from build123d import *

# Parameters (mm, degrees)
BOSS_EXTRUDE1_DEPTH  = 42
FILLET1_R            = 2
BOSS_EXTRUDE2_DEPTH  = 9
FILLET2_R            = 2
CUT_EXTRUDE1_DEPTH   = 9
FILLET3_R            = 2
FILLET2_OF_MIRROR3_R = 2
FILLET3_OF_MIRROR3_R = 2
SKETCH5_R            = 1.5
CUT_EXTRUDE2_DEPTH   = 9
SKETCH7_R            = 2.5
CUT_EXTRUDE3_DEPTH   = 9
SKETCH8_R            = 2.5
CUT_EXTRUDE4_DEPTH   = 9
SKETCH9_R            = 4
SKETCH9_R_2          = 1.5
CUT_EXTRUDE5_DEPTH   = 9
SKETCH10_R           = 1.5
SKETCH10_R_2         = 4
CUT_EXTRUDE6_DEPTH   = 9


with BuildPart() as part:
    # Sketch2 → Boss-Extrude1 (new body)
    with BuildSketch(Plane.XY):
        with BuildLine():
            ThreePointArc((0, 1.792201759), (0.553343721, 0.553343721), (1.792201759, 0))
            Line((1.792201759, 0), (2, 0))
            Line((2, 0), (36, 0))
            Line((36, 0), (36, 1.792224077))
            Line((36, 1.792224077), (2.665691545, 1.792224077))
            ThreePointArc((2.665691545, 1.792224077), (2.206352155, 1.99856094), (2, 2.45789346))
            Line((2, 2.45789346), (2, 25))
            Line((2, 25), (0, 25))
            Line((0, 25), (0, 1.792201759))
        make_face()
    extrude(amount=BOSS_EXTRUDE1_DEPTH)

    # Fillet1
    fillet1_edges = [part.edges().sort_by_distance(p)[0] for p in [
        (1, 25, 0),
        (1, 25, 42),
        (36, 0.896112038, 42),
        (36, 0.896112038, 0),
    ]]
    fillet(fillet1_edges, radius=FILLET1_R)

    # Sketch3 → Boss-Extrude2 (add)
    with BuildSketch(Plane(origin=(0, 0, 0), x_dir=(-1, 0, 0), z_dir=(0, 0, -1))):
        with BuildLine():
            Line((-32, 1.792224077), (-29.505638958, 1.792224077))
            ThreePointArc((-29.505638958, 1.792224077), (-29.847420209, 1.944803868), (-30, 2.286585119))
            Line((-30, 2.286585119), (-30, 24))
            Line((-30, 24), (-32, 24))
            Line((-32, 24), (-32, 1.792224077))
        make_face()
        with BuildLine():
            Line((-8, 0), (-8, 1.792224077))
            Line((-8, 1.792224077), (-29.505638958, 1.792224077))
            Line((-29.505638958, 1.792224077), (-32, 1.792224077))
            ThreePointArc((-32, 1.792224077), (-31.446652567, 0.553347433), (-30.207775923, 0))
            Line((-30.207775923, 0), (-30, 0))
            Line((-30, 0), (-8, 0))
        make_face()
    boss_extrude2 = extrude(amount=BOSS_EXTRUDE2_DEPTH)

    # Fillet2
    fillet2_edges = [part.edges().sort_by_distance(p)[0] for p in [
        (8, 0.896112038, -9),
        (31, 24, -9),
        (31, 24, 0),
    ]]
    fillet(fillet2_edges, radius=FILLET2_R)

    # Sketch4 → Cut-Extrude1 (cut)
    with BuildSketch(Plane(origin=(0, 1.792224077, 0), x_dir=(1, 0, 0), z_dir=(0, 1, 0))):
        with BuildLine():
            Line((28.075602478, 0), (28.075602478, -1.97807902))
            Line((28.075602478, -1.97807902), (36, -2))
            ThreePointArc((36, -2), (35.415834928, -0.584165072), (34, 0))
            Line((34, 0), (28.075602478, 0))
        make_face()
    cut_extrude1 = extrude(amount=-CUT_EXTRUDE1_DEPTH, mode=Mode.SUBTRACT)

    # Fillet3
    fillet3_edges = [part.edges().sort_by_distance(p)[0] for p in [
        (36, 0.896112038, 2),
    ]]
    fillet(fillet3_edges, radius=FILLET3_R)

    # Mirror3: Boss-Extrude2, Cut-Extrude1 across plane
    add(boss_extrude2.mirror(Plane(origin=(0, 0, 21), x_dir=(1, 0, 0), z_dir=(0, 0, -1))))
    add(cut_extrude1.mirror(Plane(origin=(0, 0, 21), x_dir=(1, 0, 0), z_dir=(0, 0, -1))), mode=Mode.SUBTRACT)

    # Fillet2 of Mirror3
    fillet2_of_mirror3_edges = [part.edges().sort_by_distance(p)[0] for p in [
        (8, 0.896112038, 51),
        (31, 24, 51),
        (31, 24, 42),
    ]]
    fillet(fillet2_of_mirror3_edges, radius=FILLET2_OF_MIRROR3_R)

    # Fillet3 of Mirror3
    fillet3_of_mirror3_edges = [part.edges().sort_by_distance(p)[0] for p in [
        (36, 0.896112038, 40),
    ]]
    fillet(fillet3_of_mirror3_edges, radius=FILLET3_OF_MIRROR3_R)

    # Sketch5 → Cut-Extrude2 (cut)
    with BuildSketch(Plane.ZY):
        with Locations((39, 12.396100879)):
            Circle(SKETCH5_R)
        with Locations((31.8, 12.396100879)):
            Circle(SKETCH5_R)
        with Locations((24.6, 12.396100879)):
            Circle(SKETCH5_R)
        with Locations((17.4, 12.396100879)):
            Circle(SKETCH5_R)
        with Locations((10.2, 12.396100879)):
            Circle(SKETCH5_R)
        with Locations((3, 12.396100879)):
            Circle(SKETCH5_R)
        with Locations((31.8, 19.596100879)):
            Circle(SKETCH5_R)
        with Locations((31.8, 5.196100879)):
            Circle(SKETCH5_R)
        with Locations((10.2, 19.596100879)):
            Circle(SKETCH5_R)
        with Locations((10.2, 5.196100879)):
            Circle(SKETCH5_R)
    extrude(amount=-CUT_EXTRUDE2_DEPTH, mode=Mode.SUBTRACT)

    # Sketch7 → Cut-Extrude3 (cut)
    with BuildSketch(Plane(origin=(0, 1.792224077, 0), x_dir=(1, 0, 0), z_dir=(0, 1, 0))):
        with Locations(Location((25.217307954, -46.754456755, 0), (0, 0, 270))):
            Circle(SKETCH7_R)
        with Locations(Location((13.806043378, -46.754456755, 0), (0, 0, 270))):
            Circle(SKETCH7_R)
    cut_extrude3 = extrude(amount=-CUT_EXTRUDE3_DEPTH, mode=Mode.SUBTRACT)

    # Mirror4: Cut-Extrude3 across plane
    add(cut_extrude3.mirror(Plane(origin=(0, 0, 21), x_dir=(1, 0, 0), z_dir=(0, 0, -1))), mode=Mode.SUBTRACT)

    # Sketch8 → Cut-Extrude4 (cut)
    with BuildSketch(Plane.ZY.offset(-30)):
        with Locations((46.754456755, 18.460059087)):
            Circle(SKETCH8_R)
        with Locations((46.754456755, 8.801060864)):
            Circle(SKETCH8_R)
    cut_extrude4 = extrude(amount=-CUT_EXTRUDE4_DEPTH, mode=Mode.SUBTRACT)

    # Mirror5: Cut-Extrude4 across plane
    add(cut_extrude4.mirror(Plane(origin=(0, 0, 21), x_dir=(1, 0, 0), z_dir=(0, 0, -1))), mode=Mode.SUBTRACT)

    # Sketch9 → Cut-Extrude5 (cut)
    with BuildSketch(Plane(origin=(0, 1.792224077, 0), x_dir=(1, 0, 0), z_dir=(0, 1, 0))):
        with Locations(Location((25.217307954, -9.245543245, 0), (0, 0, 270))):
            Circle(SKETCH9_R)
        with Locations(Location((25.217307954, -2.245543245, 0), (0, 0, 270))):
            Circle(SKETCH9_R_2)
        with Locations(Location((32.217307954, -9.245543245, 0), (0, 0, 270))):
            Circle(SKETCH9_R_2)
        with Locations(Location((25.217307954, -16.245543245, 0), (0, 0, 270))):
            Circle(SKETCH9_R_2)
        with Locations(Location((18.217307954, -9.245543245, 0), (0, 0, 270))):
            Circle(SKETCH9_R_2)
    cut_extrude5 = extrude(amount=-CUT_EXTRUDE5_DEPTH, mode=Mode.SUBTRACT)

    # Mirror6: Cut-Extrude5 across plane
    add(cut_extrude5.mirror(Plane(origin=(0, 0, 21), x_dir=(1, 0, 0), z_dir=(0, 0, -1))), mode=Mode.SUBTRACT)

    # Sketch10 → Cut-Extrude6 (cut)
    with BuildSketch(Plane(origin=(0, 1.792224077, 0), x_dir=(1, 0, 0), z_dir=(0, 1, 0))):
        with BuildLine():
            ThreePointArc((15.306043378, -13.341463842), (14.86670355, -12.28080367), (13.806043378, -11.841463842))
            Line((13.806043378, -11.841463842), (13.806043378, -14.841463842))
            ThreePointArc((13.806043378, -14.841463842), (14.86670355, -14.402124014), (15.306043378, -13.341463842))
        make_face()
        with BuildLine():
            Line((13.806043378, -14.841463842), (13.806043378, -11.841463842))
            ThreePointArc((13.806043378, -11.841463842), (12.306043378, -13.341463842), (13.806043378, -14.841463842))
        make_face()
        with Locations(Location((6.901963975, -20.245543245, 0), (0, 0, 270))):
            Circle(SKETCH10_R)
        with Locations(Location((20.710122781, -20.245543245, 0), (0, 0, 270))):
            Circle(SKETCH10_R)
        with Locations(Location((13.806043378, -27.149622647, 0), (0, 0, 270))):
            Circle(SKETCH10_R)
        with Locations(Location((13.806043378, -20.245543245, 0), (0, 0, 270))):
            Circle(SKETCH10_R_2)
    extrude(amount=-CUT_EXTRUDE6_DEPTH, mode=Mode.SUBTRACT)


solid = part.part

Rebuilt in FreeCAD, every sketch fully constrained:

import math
import FreeCAD as App
import Part
import Sketcher
from FreeCAD import Vector
Q = App.Units.Quantity


def edges_at(feature, points):
    """Names of the edges that pass closest to the given points."""
    edges = feature.Shape.Edges
    near = lambda p: min(range(len(edges)), key=lambda i: edges[i].distToShape(Part.Vertex(*p))[0])
    return sorted({f"Edge{near(p) + 1}" for p in points})

doc = App.newDocument("Part")
body = doc.addObject("PartDesign::Body", "Body")

sketch1 = doc.addObject("Sketcher::SketchObject", "Sketch")
body.addObject(sketch1)
sketch1.AttachmentSupport = (doc.XY_Plane, [""])
sketch1.MapMode = "FlatFace"
sketch1.addGeometry([
    Part.ArcOfCircle(Part.Circle(Vector(1.9, 1.9, 0), Vector(0, 0, 1), 1.9), math.radians(-177), math.radians(-93)),
    Part.LineSegment(Vector(1.8, 0, 0), Vector(36, 0, 0)),
    Part.LineSegment(Vector(36, 0, 0), Vector(36, 1.8, 0)),
    Part.LineSegment(Vector(36, 1.8, 0), Vector(2.7, 1.8, 0)),
    Part.ArcOfCircle(Part.Circle(Vector(2.7, 2.5, 0), Vector(0, 0, 1), 0.7), math.radians(-177), math.radians(-93)),
    Part.LineSegment(Vector(2, 2.5, 0), Vector(2, 25, 0)),
    Part.LineSegment(Vector(2, 25, 0), Vector(0, 25, 0)),
    Part.LineSegment(Vector(0, 25, 0), Vector(0, 1.8, 0)),
], False)
sketch1.addConstraint([
    Sketcher.Constraint("Coincident", 0, 2, 1, 1),
    Sketcher.Constraint("Coincident", 1, 2, 2, 1),
    Sketcher.Constraint("Coincident", 2, 2, 3, 1),
    Sketcher.Constraint("Coincident", 3, 2, 4, 2),
    Sketcher.Constraint("Coincident", 4, 1, 5, 1),
    Sketcher.Constraint("Coincident", 5, 2, 6, 1),
    Sketcher.Constraint("Coincident", 6, 2, 7, 1),
    Sketcher.Constraint("Coincident", 7, 2, 0, 1),
    Sketcher.Constraint("Horizontal", 1),
    Sketcher.Constraint("Vertical", 2),
    Sketcher.Constraint("Horizontal", 3),
    Sketcher.Constraint("Vertical", 5),
    Sketcher.Constraint("Horizontal", 6),
    Sketcher.Constraint("Vertical", 7),
    Sketcher.Constraint("PointOnObject", 0, 2, -1),
    Sketcher.Constraint("PointOnObject", 6, 2, -2),
    Sketcher.Constraint("DistanceX", 6, 2, 6, 1, Q("2 mm")),
    Sketcher.Constraint("DistanceX", -1, 1, 1, 2, Q("36 mm")),
    Sketcher.Constraint("DistanceY", -1, 1, 5, 2, Q("25 mm")),
    Sketcher.Constraint("DistanceX", 1, 1, 1, 2, Q("34.207798 mm")),
    Sketcher.Constraint("DistanceY", 7, 2, 7, 1, Q("23.207798 mm")),
    Sketcher.Constraint("Radius", 0, Q("1.898945 mm")),
    Sketcher.Constraint("Radius", 4, Q("0.708717 mm")),
    Sketcher.Constraint("DistanceX", 3, 2, 3, 1, Q("33.334308 mm")),
    Sketcher.Constraint("DistanceY", 2, 1, 2, 2, Q("1.792224 mm")),
    Sketcher.Constraint("DistanceY", 5, 1, 5, 2, Q("22.542107 mm")),
])
pad1 = doc.addObject("PartDesign::Pad", "Pad")
body.addObject(pad1)
pad1.Profile = sketch1
pad1.Length = 42
doc.recompute()

fillet = doc.addObject("PartDesign::Fillet", "Fillet")
body.addObject(fillet)
fillet.Base = (pad1, edges_at(pad1, [
    (1, 25, 0),
    (1, 25, 42),
    (36, 0.896, 42),
    (36, 0.896, 0),
]))
fillet.Radius = 2

sketch2 = doc.addObject("Sketcher::SketchObject", "Sketch001")
body.addObject(sketch2)
sketch2.AttachmentSupport = (doc.XY_Plane, [""])
sketch2.MapMode = "FlatFace"
sketch2.addGeometry([
    Part.ArcOfCircle(Part.Circle(Vector(29.5, 2.3, 0), Vector(0, 0, 1), 0.5), math.radians(-87), math.radians(-3)),
    Part.LineSegment(Vector(30, 2.3, 0), Vector(30, 24, 0)),
    Part.LineSegment(Vector(30, 24, 0), Vector(32, 24, 0)),
    Part.LineSegment(Vector(32, 24, 0), Vector(32, 1.8, 0)),
    Part.ArcOfCircle(Part.Circle(Vector(30.1, 1.9, 0), Vector(0, 0, 1), 1.9), math.radians(-87), math.radians(-3)),
    Part.LineSegment(Vector(30.2, 0, 0), Vector(8, 0, 0)),
    Part.LineSegment(Vector(8, 0, 0), Vector(8, 1.8, 0)),
    Part.LineSegment(Vector(8, 1.8, 0), Vector(29.5, 1.8, 0)),
], False)
sketch2.addConstraint([
    Sketcher.Constraint("Coincident", 0, 2, 1, 1),
    Sketcher.Constraint("Coincident", 1, 2, 2, 1),
    Sketcher.Constraint("Coincident", 2, 2, 3, 1),
    Sketcher.Constraint("Coincident", 3, 2, 4, 2),
    Sketcher.Constraint("Coincident", 4, 1, 5, 1),
    Sketcher.Constraint("Coincident", 5, 2, 6, 1),
    Sketcher.Constraint("Coincident", 6, 2, 7, 1),
    Sketcher.Constraint("Coincident", 7, 2, 0, 1),
    Sketcher.Constraint("Vertical", 1),
    Sketcher.Constraint("Horizontal", 2),
    Sketcher.Constraint("Vertical", 3),
    Sketcher.Constraint("Horizontal", 5),
    Sketcher.Constraint("Vertical", 6),
    Sketcher.Constraint("Horizontal", 7),
    Sketcher.Constraint("PointOnObject", 4, 1, -1),
    Sketcher.Constraint("Horizontal", 3, 2, 6, 2),
    Sketcher.Constraint("Equal", 5, 3),
    Sketcher.Constraint("DistanceX", 2, 1, 2, 2, Q("2 mm")),
    Sketcher.Constraint("DistanceX", -1, 1, 0, 2, Q("30 mm")),
    Sketcher.Constraint("DistanceY", -1, 1, 1, 2, Q("24 mm")),
    Sketcher.Constraint("DistanceX", -1, 1, 5, 2, Q("8 mm")),
    Sketcher.Constraint("Radius", 0, Q("0.52358 mm")),
    Sketcher.Constraint("Radius", 4, Q("1.898956 mm")),
    Sketcher.Constraint("DistanceX", 7, 1, 7, 2, Q("21.505639 mm")),
    Sketcher.Constraint("DistanceX", 5, 2, 5, 1, Q("22.207776 mm")),
    Sketcher.Constraint("DistanceY", 1, 1, 1, 2, Q("21.713415 mm")),
])
pad2 = doc.addObject("PartDesign::Pad", "Pad001")
body.addObject(pad2)
pad2.Profile = sketch2
pad2.Length = 9
pad2.Reversed = True
doc.recompute()

fillet2 = doc.addObject("PartDesign::Fillet", "Fillet001")
body.addObject(fillet2)
fillet2.Base = (pad2, edges_at(pad2, [(8, 0.896, -9), (31, 24, -9), (31, 24, 0)]))
fillet2.Radius = 2

sketch3 = doc.addObject("Sketcher::SketchObject", "Sketch002")
body.addObject(sketch3)
sketch3.AttachmentSupport = (doc.XZ_Plane, [""])
sketch3.MapMode = "FlatFace"
sketch3.AttachmentOffset = App.Placement(Vector(0, 0, -1.792224), App.Rotation())
sketch3.addGeometry([
    Part.LineSegment(Vector(28.1, 0, 0), Vector(28.1, 2, 0)),
    Part.LineSegment(Vector(28.1, 2, 0), Vector(36, 2, 0)),
    Part.ArcOfCircle(Part.Circle(Vector(34, 2, 0), Vector(0, 0, 1), 2), math.radians(-90), math.radians(0)),
    Part.LineSegment(Vector(34, 0, 0), Vector(28.1, 0, 0)),
], False)
sketch3.addConstraint([
    Sketcher.Constraint("Coincident", 0, 2, 1, 1),
    Sketcher.Constraint("Coincident", 1, 2, 2, 2),
    Sketcher.Constraint("Coincident", 2, 1, 3, 1),
    Sketcher.Constraint("Coincident", 3, 2, 0, 1),
    Sketcher.Constraint("Vertical", 0),
    Sketcher.Constraint("Horizontal", 3),
    Sketcher.Constraint("PointOnObject", 2, 1, -1),
    Sketcher.Constraint("DistanceX", -1, 1, 1, 2, Q("36 mm")),
    Sketcher.Constraint("DistanceY", -1, 1, 1, 2, Q("2 mm")),
    Sketcher.Constraint("DistanceX", -1, 1, 2, 1, Q("34 mm")),
    Sketcher.Constraint("Radius", 2, Q("1.99449 mm")),
    Sketcher.Constraint("DistanceY", 0, 1, 0, 2, Q("1.978079 mm")),
    Sketcher.Constraint("DistanceX", 3, 2, 3, 1, Q("5.924398 mm")),
])
pocket1 = doc.addObject("PartDesign::Pocket", "Pocket")
body.addObject(pocket1)
pocket1.Profile = sketch3
pocket1.Length = 9
pocket1.Reversed = True
doc.recompute()

fillet3 = doc.addObject("PartDesign::Fillet", "Fillet002")
body.addObject(fillet3)
fillet3.Base = (pocket1, edges_at(pocket1, [(36, 0.896, 2)]))
fillet3.Radius = 2
doc.recompute()

datumplane = doc.addObject("PartDesign::Plane", "DatumPlane")
body.addObject(datumplane)
datumplane.AttachmentSupport = (doc.XY_Plane, [""])
datumplane.MapMode = "FlatFace"
datumplane.AttachmentOffset = App.Placement(Vector(0, 0, 21), App.Rotation())
mirrored = doc.addObject("PartDesign::Mirrored", "Mirrored")
body.addObject(mirrored)
mirrored.Originals = [pad2, pocket1]
mirrored.MirrorPlane = (datumplane, [""])
body.Tip = mirrored
doc.recompute()

fillet4 = doc.addObject("PartDesign::Fillet", "Fillet003")
body.addObject(fillet4)
fillet4.Base = (mirrored, edges_at(mirrored, [(8, 0.896, 51), (31, 24, 51), (31, 24, 42)]))
fillet4.Radius = 2
doc.recompute()

fillet5 = doc.addObject("PartDesign::Fillet", "Fillet004")
body.addObject(fillet5)
fillet5.Base = (fillet4, edges_at(fillet4, [(36, 0.896, 40)]))
fillet5.Radius = 2

sketch4 = doc.addObject("Sketcher::SketchObject", "Sketch003")
body.addObject(sketch4)
sketch4.AttachmentSupport = (doc.YZ_Plane, [""])
sketch4.MapMode = "FlatFace"
sketch4.addGeometry([
    Part.Circle(Vector(12.4, 39, 0), Vector(0, 0, 1), 1.5),
    Part.Circle(Vector(12.4, 31.8, 0), Vector(0, 0, 1), 1.5),
    Part.Circle(Vector(12.4, 24.6, 0), Vector(0, 0, 1), 1.5),
    Part.Circle(Vector(12.4, 17.4, 0), Vector(0, 0, 1), 1.5),
    Part.Circle(Vector(12.4, 10.2, 0), Vector(0, 0, 1), 1.5),
    Part.Circle(Vector(12.4, 3, 0), Vector(0, 0, 1), 1.5),
    Part.Circle(Vector(19.6, 31.8, 0), Vector(0, 0, 1), 1.5),
    Part.Circle(Vector(5.2, 31.8, 0), Vector(0, 0, 1), 1.5),
    Part.Circle(Vector(19.6, 10.2, 0), Vector(0, 0, 1), 1.5),
    Part.Circle(Vector(5.2, 10.2, 0), Vector(0, 0, 1), 1.5),
], False)
sketch4.addConstraint([
    Sketcher.Constraint("Equal", 0, 1),
    Sketcher.Constraint("Equal", 1, 2),
    Sketcher.Constraint("Equal", 2, 3),
    Sketcher.Constraint("Equal", 3, 4),
    Sketcher.Constraint("Equal", 4, 5),
    Sketcher.Constraint("Equal", 5, 6),
    Sketcher.Constraint("Equal", 6, 7),
    Sketcher.Constraint("Equal", 7, 8),
    Sketcher.Constraint("Equal", 8, 9),
    Sketcher.Constraint("Horizontal", 1, 3, 6, 3),
    Sketcher.Constraint("Horizontal", 6, 3, 7, 3),
    Sketcher.Constraint("Horizontal", 4, 3, 8, 3),
    Sketcher.Constraint("Horizontal", 8, 3, 9, 3),
    Sketcher.Constraint("Vertical", 0, 3, 1, 3),
    Sketcher.Constraint("Vertical", 1, 3, 2, 3),
    Sketcher.Constraint("Vertical", 2, 3, 3, 3),
    Sketcher.Constraint("Vertical", 3, 3, 4, 3),
    Sketcher.Constraint("Vertical", 4, 3, 5, 3),
    Sketcher.Constraint("Vertical", 6, 3, 8, 3),
    Sketcher.Constraint("Vertical", 7, 3, 9, 3),
    Sketcher.Constraint("Diameter", 0, Q("3 mm")),
    Sketcher.Constraint("DistanceY", -1, 1, 0, 3, Q("39 mm")),
    Sketcher.Constraint("DistanceY", -1, 1, 5, 3, Q("3 mm")),
    Sketcher.Constraint("DistanceY", -1, 1, 1, 3, Q("31.8 mm")),
    Sketcher.Constraint("DistanceY", -1, 1, 2, 3, Q("24.6 mm")),
    Sketcher.Constraint("DistanceY", -1, 1, 3, 3, Q("17.4 mm")),
    Sketcher.Constraint("DistanceY", -1, 1, 4, 3, Q("10.2 mm")),
    Sketcher.Constraint("DistanceX", 1, 3, 6, 3, Q("7.2 mm")),
    Sketcher.Constraint("DistanceX", 7, 3, 1, 3, Q("7.2 mm")),
    Sketcher.Constraint("DistanceX", -1, 1, 0, 3, Q("12.396101 mm")),
])
pocket2 = doc.addObject("PartDesign::Pocket", "Pocket001")
body.addObject(pocket2)
pocket2.Profile = sketch4
pocket2.Length = 9
pocket2.Reversed = True

sketch5 = doc.addObject("Sketcher::SketchObject", "Sketch004")
body.addObject(sketch5)
sketch5.AttachmentSupport = (doc.XZ_Plane, [""])
sketch5.MapMode = "FlatFace"
sketch5.AttachmentOffset = App.Placement(Vector(0, 0, -1.792224), App.Rotation())
sketch5.addGeometry([
    Part.Circle(Vector(25.2, 46.8, 0), Vector(0, 0, 1), 2.5),
    Part.Circle(Vector(13.8, 46.8, 0), Vector(0, 0, 1), 2.5),
], False)
sketch5.addConstraint([
    Sketcher.Constraint("Equal", 0, 1),
    Sketcher.Constraint("Horizontal", 0, 3, 1, 3),
    Sketcher.Constraint("Diameter", 0, Q("5 mm")),
    Sketcher.Constraint("DistanceX", -1, 1, 0, 3, Q("25.217308 mm")),
    Sketcher.Constraint("DistanceY", -1, 1, 0, 3, Q("46.754457 mm")),
    Sketcher.Constraint("DistanceX", -1, 1, 1, 3, Q("13.806043 mm")),
])
pocket3 = doc.addObject("PartDesign::Pocket", "Pocket002")
body.addObject(pocket3)
pocket3.Profile = sketch5
pocket3.Length = 9
pocket3.Reversed = True
doc.recompute()

datumplane2 = doc.addObject("PartDesign::Plane", "DatumPlane001")
body.addObject(datumplane2)
datumplane2.AttachmentSupport = (doc.XY_Plane, [""])
datumplane2.MapMode = "FlatFace"
datumplane2.AttachmentOffset = App.Placement(Vector(0, 0, 21), App.Rotation())
mirrored2 = doc.addObject("PartDesign::Mirrored", "Mirrored001")
body.addObject(mirrored2)
mirrored2.Originals = [pocket3]
mirrored2.MirrorPlane = (datumplane2, [""])
body.Tip = mirrored2

sketch6 = doc.addObject("Sketcher::SketchObject", "Sketch005")
body.addObject(sketch6)
sketch6.AttachmentSupport = (doc.YZ_Plane, [""])
sketch6.MapMode = "FlatFace"
sketch6.AttachmentOffset = App.Placement(Vector(0, 0, 30), App.Rotation())
sketch6.addGeometry([
    Part.Circle(Vector(18.5, 46.8, 0), Vector(0, 0, 1), 2.5),
    Part.Circle(Vector(8.8, 46.8, 0), Vector(0, 0, 1), 2.5),
], False)
sketch6.addConstraint([
    Sketcher.Constraint("Equal", 0, 1),
    Sketcher.Constraint("Horizontal", 0, 3, 1, 3),
    Sketcher.Constraint("Diameter", 0, Q("5 mm")),
    Sketcher.Constraint("DistanceX", 1, 3, 0, 3, Q("9.658998 mm")),
    Sketcher.Constraint("DistanceX", -1, 1, 0, 3, Q("18.460059 mm")),
    Sketcher.Constraint("DistanceY", -1, 1, 0, 3, Q("46.754457 mm")),
])
pocket4 = doc.addObject("PartDesign::Pocket", "Pocket003")
body.addObject(pocket4)
pocket4.Profile = sketch6
pocket4.Length = 9
pocket4.Reversed = True
doc.recompute()

datumplane3 = doc.addObject("PartDesign::Plane", "DatumPlane002")
body.addObject(datumplane3)
datumplane3.AttachmentSupport = (doc.XY_Plane, [""])
datumplane3.MapMode = "FlatFace"
datumplane3.AttachmentOffset = App.Placement(Vector(0, 0, 21), App.Rotation())
mirrored3 = doc.addObject("PartDesign::Mirrored", "Mirrored002")
body.addObject(mirrored3)
mirrored3.Originals = [pocket4]
mirrored3.MirrorPlane = (datumplane3, [""])
body.Tip = mirrored3

sketch7 = doc.addObject("Sketcher::SketchObject", "Sketch006")
body.addObject(sketch7)
sketch7.AttachmentSupport = (doc.XZ_Plane, [""])
sketch7.MapMode = "FlatFace"
sketch7.AttachmentOffset = App.Placement(Vector(0, 0, -1.792224), App.Rotation())
sketch7.addGeometry([
    Part.Circle(Vector(25.2, 9.2, 0), Vector(0, 0, 1), 4),
    Part.Circle(Vector(25.2, 2.2, 0), Vector(0, 0, 1), 1.5),
    Part.Circle(Vector(32.2, 9.2, 0), Vector(0, 0, 1), 1.5),
    Part.Circle(Vector(25.2, 16.2, 0), Vector(0, 0, 1), 1.5),
    Part.Circle(Vector(18.2, 9.2, 0), Vector(0, 0, 1), 1.5),
], False)
sketch7.addConstraint([
    Sketcher.Constraint("Equal", 1, 2),
    Sketcher.Constraint("Equal", 2, 3),
    Sketcher.Constraint("Equal", 3, 4),
    Sketcher.Constraint("Horizontal", 0, 3, 2, 3),
    Sketcher.Constraint("Horizontal", 2, 3, 4, 3),
    Sketcher.Constraint("Vertical", 0, 3, 1, 3),
    Sketcher.Constraint("Vertical", 1, 3, 3, 3),
    Sketcher.Constraint("Diameter", 0, Q("8 mm")),
    Sketcher.Constraint("Diameter", 1, Q("3 mm")),
    Sketcher.Constraint("DistanceY", 1, 3, 0, 3, Q("7 mm")),
    Sketcher.Constraint("DistanceX", 0, 3, 2, 3, Q("7 mm")),
    Sketcher.Constraint("DistanceY", 0, 3, 3, 3, Q("7 mm")),
    Sketcher.Constraint("DistanceX", 4, 3, 0, 3, Q("7 mm")),
    Sketcher.Constraint("DistanceX", -1, 1, 0, 3, Q("25.217308 mm")),
    Sketcher.Constraint("DistanceY", -1, 1, 0, 3, Q("9.245543 mm")),
])
pocket5 = doc.addObject("PartDesign::Pocket", "Pocket004")
body.addObject(pocket5)
pocket5.Profile = sketch7
pocket5.Length = 9
pocket5.Reversed = True
doc.recompute()

datumplane4 = doc.addObject("PartDesign::Plane", "DatumPlane003")
body.addObject(datumplane4)
datumplane4.AttachmentSupport = (doc.XY_Plane, [""])
datumplane4.MapMode = "FlatFace"
datumplane4.AttachmentOffset = App.Placement(Vector(0, 0, 21), App.Rotation())
mirrored4 = doc.addObject("PartDesign::Mirrored", "Mirrored003")
body.addObject(mirrored4)
mirrored4.Originals = [pocket5]
mirrored4.MirrorPlane = (datumplane4, [""])
body.Tip = mirrored4

sketch8 = doc.addObject("Sketcher::SketchObject", "Sketch007")
body.addObject(sketch8)
sketch8.AttachmentSupport = (doc.XZ_Plane, [""])
sketch8.MapMode = "FlatFace"
sketch8.AttachmentOffset = App.Placement(Vector(0, 0, -1.792224), App.Rotation())
sketch8.addGeometry([
    Part.ArcOfCircle(Part.Circle(Vector(13.8, 13.3, 0), Vector(0, 0, 1), 1.5), math.radians(-90), math.radians(0)),
    Part.ArcOfCircle(Part.Circle(Vector(13.8, 13.3, 0), Vector(0, 0, 1), 1.5), math.radians(90), math.radians(270)),
    Part.ArcOfCircle(Part.Circle(Vector(13.8, 13.3, 0), Vector(0, 0, 1), 1.5), math.radians(0), math.radians(90)),
    Part.Circle(Vector(6.9, 20.2, 0), Vector(0, 0, 1), 1.5),
    Part.Circle(Vector(20.7, 20.2, 0), Vector(0, 0, 1), 1.5),
    Part.Circle(Vector(13.8, 27.1, 0), Vector(0, 0, 1), 1.5),
    Part.Circle(Vector(13.8, 20.2, 0), Vector(0, 0, 1), 4),
], False)
sketch8.addConstraint([
    Sketcher.Constraint("Tangent", 0, 1, 1, 2),
    Sketcher.Constraint("Tangent", 1, 1, 2, 2),
    Sketcher.Constraint("Tangent", 2, 1, 0, 2),
    Sketcher.Constraint("Equal", 2, 3),
    Sketcher.Constraint("Equal", 3, 4),
    Sketcher.Constraint("Equal", 4, 5),
    Sketcher.Constraint("Horizontal", 3, 3, 4, 3),
    Sketcher.Constraint("Horizontal", 4, 3, 6, 3),
    Sketcher.Constraint("Horizontal", 1, 3, 2, 1),
    Sketcher.Constraint("Vertical", 2, 3, 5, 3),
    Sketcher.Constraint("Vertical", 5, 3, 6, 3),
    Sketcher.Constraint("Vertical", 6, 3, 0, 1),
    Sketcher.Constraint("Vertical", 0, 1, 1, 1),
    Sketcher.Constraint("Diameter", 3, Q("3 mm")),
    Sketcher.Constraint("Diameter", 6, Q("8 mm")),
    Sketcher.Constraint("DistanceX", 3, 3, 1, 3, Q("6.904079 mm")),
    Sketcher.Constraint("DistanceY", 1, 3, 3, 3, Q("6.904079 mm")),
    Sketcher.Constraint("DistanceX", 2, 3, 4, 3, Q("6.904079 mm")),
    Sketcher.Constraint("DistanceY", 3, 3, 5, 3, Q("6.904079 mm")),
    Sketcher.Constraint("DistanceX", -1, 1, 0, 3, Q("13.806043 mm")),
    Sketcher.Constraint("DistanceY", -1, 1, 0, 3, Q("13.341464 mm")),
])
pocket6 = doc.addObject("PartDesign::Pocket", "Pocket005")
body.addObject(pocket6)
pocket6.Profile = sketch8
pocket6.Length = 9
pocket6.Reversed = True

doc.recompute()
